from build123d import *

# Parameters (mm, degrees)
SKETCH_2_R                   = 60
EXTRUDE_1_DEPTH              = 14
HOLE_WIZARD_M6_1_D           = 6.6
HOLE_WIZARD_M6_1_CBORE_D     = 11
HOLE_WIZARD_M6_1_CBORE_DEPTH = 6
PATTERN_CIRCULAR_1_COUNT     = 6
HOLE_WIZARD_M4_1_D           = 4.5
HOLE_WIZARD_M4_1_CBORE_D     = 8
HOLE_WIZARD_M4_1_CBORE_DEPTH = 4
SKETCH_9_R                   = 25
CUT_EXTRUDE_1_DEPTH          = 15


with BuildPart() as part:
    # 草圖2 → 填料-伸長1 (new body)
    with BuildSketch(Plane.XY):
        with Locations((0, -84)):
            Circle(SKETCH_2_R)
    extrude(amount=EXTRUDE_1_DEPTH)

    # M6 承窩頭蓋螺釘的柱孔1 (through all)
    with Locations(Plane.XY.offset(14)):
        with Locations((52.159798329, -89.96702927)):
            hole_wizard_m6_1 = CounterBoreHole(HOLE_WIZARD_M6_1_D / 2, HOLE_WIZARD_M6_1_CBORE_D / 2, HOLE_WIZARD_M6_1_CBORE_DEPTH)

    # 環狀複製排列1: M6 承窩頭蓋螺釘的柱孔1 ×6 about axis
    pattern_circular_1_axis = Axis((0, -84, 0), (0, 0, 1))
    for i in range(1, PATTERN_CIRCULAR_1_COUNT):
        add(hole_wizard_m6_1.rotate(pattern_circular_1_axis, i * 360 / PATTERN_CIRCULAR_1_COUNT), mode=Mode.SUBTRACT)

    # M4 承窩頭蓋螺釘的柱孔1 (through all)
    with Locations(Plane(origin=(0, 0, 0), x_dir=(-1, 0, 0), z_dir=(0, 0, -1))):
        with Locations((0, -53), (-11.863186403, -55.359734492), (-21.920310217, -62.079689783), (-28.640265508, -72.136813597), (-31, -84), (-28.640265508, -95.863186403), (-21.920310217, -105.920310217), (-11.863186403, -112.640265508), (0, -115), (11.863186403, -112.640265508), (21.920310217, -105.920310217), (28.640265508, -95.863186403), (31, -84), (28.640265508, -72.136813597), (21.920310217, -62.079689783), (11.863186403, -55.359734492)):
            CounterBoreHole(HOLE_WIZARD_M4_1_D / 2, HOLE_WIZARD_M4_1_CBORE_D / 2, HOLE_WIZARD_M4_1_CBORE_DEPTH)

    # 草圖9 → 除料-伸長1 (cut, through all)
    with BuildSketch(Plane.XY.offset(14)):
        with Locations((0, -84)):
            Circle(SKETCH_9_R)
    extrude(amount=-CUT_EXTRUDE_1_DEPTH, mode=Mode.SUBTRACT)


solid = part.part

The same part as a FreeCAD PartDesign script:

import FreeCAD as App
import Part
import Sketcher
from FreeCAD import Vector
Q = App.Units.Quantity

doc = App.newDocument("Part")
body = doc.addObject("PartDesign::Body", "Body")

sketch1 = body.newObject("Sketcher::SketchObject", "Sketch")
sketch1.AttachmentSupport = (doc.getObject("XY_Plane"), [""])
sketch1.MapMode = "FlatFace"
sketch1.addGeometry(Part.Circle(Vector(0, -84, 0), Vector(0, 0, 1), 60), False)
sketch1.addConstraint(Sketcher.Constraint("PointOnObject", 0, 3, -2))
sketch1.addConstraint(Sketcher.Constraint("Diameter", 0, Q("120 mm")))
sketch1.addConstraint(Sketcher.Constraint("DistanceY", 0, 3, -1, 1, Q("84 mm")))
pad1 = body.newObject("PartDesign::Pad", "Pad")
pad1.Profile = sketch1
pad1.Length = 14

sketch2 = body.newObject("Sketcher::SketchObject", "Sketch001")
sketch2.AttachmentSupport = (doc.getObject("XY_Plane"), [""])
sketch2.MapMode = "FlatFace"
sketch2.AttachmentOffset = App.Placement(Vector(0, 0, 14), App.Rotation())
sketch2.addGeometry(Part.Circle(Vector(52.2, -90, 0), Vector(0, 0, 1), 3.3), False)
sketch2.addConstraint(Sketcher.Constraint("Diameter", 0, Q("6.6 mm")))
sketch2.addConstraint(Sketcher.Constraint("DistanceX", -1, 1, 0, 3, Q("52.159798 mm")))
sketch2.addConstraint(Sketcher.Constraint("DistanceY", 0, 3, -1, 1, Q("89.967029 mm")))
doc.recompute()
hole = body.newObject("PartDesign::Hole", "Hole")
hole.Profile = sketch2
hole.ThreadType = "None"
hole.Diameter = 6.6
hole.DepthType = "ThroughAll"
hole.HoleCutType = "Counterbore"
hole.HoleCutDiameter = 11
hole.HoleCutDepth = 6
doc.recompute()

datumline = body.newObject("PartDesign::Line", "DatumLine")
datumline.Placement = App.Placement(Vector(0, -84, 0), App.Rotation(Vector(0, 0, 1), Vector(0, 0, 1)))
polarpattern = body.newObject("PartDesign::PolarPattern", "PolarPattern")
polarpattern.Originals = [hole]
polarpattern.Axis = (datumline, [""])
polarpattern.Angle = 360
polarpattern.Occurrences = 6
body.Tip = polarpattern

sketch3 = body.newObject("Sketcher::SketchObject", "Sketch002")
sketch3.AttachmentSupport = (doc.getObject("XY_Plane"), [""])
sketch3.MapMode = "FlatFace"
sketch3.addGeometry(Part.Circle(Vector(0, -53, 0), Vector(0, 0, 1), 2.2), False)
sketch3.addGeometry(Part.Circle(Vector(11.9, -55.4, 0), Vector(0, 0, 1), 2.2), False)
sketch3.addGeometry(Part.Circle(Vector(21.9, -62.1, 0), Vector(0, 0, 1), 2.2), False)
sketch3.addGeometry(Part.Circle(Vector(28.6, -72.1, 0), Vector(0, 0, 1), 2.2), False)
sketch3.addGeometry(Part.Circle(Vector(31, -84, 0), Vector(0, 0, 1), 2.2), False)
sketch3.addGeometry(Part.Circle(Vector(28.6, -95.9, 0), Vector(0, 0, 1), 2.2), False)
sketch3.addGeometry(Part.Circle(Vector(21.9, -105.9, 0), Vector(0, 0, 1), 2.2), False)
sketch3.addGeometry(Part.Circle(Vector(11.9, -112.6, 0), Vector(0, 0, 1), 2.2), False)
sketch3.addGeometry(Part.Circle(Vector(0, -115, 0), Vector(0, 0, 1), 2.2), False)
sketch3.addGeometry(Part.Circle(Vector(-11.9, -112.6, 0), Vector(0, 0, 1), 2.2), False)
sketch3.addGeometry(Part.Circle(Vector(-21.9, -105.9, 0), Vector(0, 0, 1), 2.2), False)
sketch3.addGeometry(Part.Circle(Vector(-28.6, -95.9, 0), Vector(0, 0, 1), 2.2), False)
sketch3.addGeometry(Part.Circle(Vector(-31, -84, 0), Vector(0, 0, 1), 2.2), False)
sketch3.addGeometry(Part.Circle(Vector(-28.6, -72.1, 0), Vector(0, 0, 1), 2.2), False)
sketch3.addGeometry(Part.Circle(Vector(-21.9, -62.1, 0), Vector(0, 0, 1), 2.2), False)
sketch3.addGeometry(Part.Circle(Vector(-11.9, -55.4, 0), Vector(0, 0, 1), 2.2), False)
sketch3.addConstraint(Sketcher.Constraint("Equal", 0, 1))
sketch3.addConstraint(Sketcher.Constraint("Equal", 1, 2))
sketch3.addConstraint(Sketcher.Constraint("Equal", 2, 3))
sketch3.addConstraint(Sketcher.Constraint("Equal", 3, 4))
sketch3.addConstraint(Sketcher.Constraint("Equal", 4, 5))
sketch3.addConstraint(Sketcher.Constraint("Equal", 5, 6))
sketch3.addConstraint(Sketcher.Constraint("Equal", 6, 7))
sketch3.addConstraint(Sketcher.Constraint("Equal", 7, 8))
sketch3.addConstraint(Sketcher.Constraint("Equal", 8, 9))
sketch3.addConstraint(Sketcher.Constraint("Equal", 9, 10))
sketch3.addConstraint(Sketcher.Constraint("Equal", 10, 11))
sketch3.addConstraint(Sketcher.Constraint("Equal", 11, 12))
sketch3.addConstraint(Sketcher.Constraint("Equal", 12, 13))
sketch3.addConstraint(Sketcher.Constraint("Equal", 13, 14))
sketch3.addConstraint(Sketcher.Constraint("Equal", 14, 15))
sketch3.addConstraint(Sketcher.Constraint("Symmetric", 7, 3, 9, 3, -2))
sketch3.addConstraint(Sketcher.Constraint("Symmetric", 6, 3, 10, 3, -2))
sketch3.addConstraint(Sketcher.Constraint("Symmetric", 5, 3, 11, 3, -2))
sketch3.addConstraint(Sketcher.Constraint("Symmetric", 4, 3, 12, 3, -2))
sketch3.addConstraint(Sketcher.Constraint("Symmetric", 3, 3, 13, 3, -2))
sketch3.addConstraint(Sketcher.Constraint("Symmetric", 2, 3, 14, 3, -2))
sketch3.addConstraint(Sketcher.Constraint("Symmetric", 1, 3, 15, 3, -2))
sketch3.addConstraint(Sketcher.Constraint("PointOnObject", 0, 3, -2))
sketch3.addConstraint(Sketcher.Constraint("PointOnObject", 8, 3, -2))
sketch3.addConstraint(Sketcher.Constraint("Vertical", 3, 3, 5, 3))
sketch3.addConstraint(Sketcher.Constraint("Vertical", 2, 3, 6, 3))
sketch3.addConstraint(Sketcher.Constraint("Vertical", 1, 3, 7, 3))
sketch3.addConstraint(Sketcher.Constraint("Diameter", 0, Q("4.5 mm")))
sketch3.addConstraint(Sketcher.Constraint("DistanceY", 0, 3, -1, 1, Q("53 mm")))
sketch3.addConstraint(Sketcher.Constraint("DistanceX", -1, 1, 4, 3, Q("31 mm")))
sketch3.addConstraint(Sketcher.Constraint("DistanceY", 4, 3, -1, 1, Q("84 mm")))
sketch3.addConstraint(Sketcher.Constraint("DistanceY", 8, 3, -1, 1, Q("115 mm")))
sketch3.addConstraint(Sketcher.Constraint("DistanceX", -1, 1, 2, 3, Q("21.92031 mm")))
sketch3.addConstraint(Sketcher.Constraint("DistanceY", 2, 3, -1, 1, Q("62.07969 mm")))
sketch3.addConstraint(Sketcher.Constraint("DistanceY", 6, 3, -1, 1, Q("105.92031 mm")))
sketch3.addConstraint(Sketcher.Constraint("DistanceX", 1, 3, 3, 3, Q("16.777079 mm")))
sketch3.addConstraint(Sketcher.Constraint("DistanceY", 3, 3, 1, 3, Q("16.777079 mm")))
sketch3.addConstraint(Sketcher.Constraint("DistanceY", 5, 3, 1, 3, Q("40.503452 mm")))
sketch3.addConstraint(Sketcher.Constraint("DistanceY", 7, 3, 5, 3, Q("16.777079 mm")))
sketch3.addConstraint(Sketcher.Constraint("DistanceX", 9, 3, 5, 3, Q("40.503452 mm")))
sketch3.addConstraint(Sketcher.Constraint("DistanceY", 1, 3, -1, 1, Q("55.359734 mm")))
doc.recompute()
hole2 = body.newObject("PartDesign::Hole", "Hole001")
hole2.Profile = sketch3
hole2.ThreadType = "None"
hole2.Diameter = 4.5
hole2.DepthType = "ThroughAll"
hole2.HoleCutType = "Counterbore"
hole2.HoleCutDiameter = 8
hole2.HoleCutDepth = 4
hole2.Reversed = True

sketch4 = body.newObject("Sketcher::SketchObject", "Sketch003")
sketch4.AttachmentSupport = (doc.getObject("XY_Plane"), [""])
sketch4.MapMode = "FlatFace"
sketch4.AttachmentOffset = App.Placement(Vector(0, 0, 14), App.Rotation())
sketch4.addGeometry(Part.Circle(Vector(0, -84, 0), Vector(0, 0, 1), 25), False)
sketch4.addConstraint(Sketcher.Constraint("PointOnObject", 0, 3, -2))
sketch4.addConstraint(Sketcher.Constraint("Diameter", 0, Q("50 mm")))
sketch4.addConstraint(Sketcher.Constraint("DistanceY", 0, 3, -1, 1, Q("84 mm")))
pocket1 = body.newObject("PartDesign::Pocket", "Pocket")
pocket1.Profile = sketch4
pocket1.Type = "ThroughAll"

doc.recompute()
